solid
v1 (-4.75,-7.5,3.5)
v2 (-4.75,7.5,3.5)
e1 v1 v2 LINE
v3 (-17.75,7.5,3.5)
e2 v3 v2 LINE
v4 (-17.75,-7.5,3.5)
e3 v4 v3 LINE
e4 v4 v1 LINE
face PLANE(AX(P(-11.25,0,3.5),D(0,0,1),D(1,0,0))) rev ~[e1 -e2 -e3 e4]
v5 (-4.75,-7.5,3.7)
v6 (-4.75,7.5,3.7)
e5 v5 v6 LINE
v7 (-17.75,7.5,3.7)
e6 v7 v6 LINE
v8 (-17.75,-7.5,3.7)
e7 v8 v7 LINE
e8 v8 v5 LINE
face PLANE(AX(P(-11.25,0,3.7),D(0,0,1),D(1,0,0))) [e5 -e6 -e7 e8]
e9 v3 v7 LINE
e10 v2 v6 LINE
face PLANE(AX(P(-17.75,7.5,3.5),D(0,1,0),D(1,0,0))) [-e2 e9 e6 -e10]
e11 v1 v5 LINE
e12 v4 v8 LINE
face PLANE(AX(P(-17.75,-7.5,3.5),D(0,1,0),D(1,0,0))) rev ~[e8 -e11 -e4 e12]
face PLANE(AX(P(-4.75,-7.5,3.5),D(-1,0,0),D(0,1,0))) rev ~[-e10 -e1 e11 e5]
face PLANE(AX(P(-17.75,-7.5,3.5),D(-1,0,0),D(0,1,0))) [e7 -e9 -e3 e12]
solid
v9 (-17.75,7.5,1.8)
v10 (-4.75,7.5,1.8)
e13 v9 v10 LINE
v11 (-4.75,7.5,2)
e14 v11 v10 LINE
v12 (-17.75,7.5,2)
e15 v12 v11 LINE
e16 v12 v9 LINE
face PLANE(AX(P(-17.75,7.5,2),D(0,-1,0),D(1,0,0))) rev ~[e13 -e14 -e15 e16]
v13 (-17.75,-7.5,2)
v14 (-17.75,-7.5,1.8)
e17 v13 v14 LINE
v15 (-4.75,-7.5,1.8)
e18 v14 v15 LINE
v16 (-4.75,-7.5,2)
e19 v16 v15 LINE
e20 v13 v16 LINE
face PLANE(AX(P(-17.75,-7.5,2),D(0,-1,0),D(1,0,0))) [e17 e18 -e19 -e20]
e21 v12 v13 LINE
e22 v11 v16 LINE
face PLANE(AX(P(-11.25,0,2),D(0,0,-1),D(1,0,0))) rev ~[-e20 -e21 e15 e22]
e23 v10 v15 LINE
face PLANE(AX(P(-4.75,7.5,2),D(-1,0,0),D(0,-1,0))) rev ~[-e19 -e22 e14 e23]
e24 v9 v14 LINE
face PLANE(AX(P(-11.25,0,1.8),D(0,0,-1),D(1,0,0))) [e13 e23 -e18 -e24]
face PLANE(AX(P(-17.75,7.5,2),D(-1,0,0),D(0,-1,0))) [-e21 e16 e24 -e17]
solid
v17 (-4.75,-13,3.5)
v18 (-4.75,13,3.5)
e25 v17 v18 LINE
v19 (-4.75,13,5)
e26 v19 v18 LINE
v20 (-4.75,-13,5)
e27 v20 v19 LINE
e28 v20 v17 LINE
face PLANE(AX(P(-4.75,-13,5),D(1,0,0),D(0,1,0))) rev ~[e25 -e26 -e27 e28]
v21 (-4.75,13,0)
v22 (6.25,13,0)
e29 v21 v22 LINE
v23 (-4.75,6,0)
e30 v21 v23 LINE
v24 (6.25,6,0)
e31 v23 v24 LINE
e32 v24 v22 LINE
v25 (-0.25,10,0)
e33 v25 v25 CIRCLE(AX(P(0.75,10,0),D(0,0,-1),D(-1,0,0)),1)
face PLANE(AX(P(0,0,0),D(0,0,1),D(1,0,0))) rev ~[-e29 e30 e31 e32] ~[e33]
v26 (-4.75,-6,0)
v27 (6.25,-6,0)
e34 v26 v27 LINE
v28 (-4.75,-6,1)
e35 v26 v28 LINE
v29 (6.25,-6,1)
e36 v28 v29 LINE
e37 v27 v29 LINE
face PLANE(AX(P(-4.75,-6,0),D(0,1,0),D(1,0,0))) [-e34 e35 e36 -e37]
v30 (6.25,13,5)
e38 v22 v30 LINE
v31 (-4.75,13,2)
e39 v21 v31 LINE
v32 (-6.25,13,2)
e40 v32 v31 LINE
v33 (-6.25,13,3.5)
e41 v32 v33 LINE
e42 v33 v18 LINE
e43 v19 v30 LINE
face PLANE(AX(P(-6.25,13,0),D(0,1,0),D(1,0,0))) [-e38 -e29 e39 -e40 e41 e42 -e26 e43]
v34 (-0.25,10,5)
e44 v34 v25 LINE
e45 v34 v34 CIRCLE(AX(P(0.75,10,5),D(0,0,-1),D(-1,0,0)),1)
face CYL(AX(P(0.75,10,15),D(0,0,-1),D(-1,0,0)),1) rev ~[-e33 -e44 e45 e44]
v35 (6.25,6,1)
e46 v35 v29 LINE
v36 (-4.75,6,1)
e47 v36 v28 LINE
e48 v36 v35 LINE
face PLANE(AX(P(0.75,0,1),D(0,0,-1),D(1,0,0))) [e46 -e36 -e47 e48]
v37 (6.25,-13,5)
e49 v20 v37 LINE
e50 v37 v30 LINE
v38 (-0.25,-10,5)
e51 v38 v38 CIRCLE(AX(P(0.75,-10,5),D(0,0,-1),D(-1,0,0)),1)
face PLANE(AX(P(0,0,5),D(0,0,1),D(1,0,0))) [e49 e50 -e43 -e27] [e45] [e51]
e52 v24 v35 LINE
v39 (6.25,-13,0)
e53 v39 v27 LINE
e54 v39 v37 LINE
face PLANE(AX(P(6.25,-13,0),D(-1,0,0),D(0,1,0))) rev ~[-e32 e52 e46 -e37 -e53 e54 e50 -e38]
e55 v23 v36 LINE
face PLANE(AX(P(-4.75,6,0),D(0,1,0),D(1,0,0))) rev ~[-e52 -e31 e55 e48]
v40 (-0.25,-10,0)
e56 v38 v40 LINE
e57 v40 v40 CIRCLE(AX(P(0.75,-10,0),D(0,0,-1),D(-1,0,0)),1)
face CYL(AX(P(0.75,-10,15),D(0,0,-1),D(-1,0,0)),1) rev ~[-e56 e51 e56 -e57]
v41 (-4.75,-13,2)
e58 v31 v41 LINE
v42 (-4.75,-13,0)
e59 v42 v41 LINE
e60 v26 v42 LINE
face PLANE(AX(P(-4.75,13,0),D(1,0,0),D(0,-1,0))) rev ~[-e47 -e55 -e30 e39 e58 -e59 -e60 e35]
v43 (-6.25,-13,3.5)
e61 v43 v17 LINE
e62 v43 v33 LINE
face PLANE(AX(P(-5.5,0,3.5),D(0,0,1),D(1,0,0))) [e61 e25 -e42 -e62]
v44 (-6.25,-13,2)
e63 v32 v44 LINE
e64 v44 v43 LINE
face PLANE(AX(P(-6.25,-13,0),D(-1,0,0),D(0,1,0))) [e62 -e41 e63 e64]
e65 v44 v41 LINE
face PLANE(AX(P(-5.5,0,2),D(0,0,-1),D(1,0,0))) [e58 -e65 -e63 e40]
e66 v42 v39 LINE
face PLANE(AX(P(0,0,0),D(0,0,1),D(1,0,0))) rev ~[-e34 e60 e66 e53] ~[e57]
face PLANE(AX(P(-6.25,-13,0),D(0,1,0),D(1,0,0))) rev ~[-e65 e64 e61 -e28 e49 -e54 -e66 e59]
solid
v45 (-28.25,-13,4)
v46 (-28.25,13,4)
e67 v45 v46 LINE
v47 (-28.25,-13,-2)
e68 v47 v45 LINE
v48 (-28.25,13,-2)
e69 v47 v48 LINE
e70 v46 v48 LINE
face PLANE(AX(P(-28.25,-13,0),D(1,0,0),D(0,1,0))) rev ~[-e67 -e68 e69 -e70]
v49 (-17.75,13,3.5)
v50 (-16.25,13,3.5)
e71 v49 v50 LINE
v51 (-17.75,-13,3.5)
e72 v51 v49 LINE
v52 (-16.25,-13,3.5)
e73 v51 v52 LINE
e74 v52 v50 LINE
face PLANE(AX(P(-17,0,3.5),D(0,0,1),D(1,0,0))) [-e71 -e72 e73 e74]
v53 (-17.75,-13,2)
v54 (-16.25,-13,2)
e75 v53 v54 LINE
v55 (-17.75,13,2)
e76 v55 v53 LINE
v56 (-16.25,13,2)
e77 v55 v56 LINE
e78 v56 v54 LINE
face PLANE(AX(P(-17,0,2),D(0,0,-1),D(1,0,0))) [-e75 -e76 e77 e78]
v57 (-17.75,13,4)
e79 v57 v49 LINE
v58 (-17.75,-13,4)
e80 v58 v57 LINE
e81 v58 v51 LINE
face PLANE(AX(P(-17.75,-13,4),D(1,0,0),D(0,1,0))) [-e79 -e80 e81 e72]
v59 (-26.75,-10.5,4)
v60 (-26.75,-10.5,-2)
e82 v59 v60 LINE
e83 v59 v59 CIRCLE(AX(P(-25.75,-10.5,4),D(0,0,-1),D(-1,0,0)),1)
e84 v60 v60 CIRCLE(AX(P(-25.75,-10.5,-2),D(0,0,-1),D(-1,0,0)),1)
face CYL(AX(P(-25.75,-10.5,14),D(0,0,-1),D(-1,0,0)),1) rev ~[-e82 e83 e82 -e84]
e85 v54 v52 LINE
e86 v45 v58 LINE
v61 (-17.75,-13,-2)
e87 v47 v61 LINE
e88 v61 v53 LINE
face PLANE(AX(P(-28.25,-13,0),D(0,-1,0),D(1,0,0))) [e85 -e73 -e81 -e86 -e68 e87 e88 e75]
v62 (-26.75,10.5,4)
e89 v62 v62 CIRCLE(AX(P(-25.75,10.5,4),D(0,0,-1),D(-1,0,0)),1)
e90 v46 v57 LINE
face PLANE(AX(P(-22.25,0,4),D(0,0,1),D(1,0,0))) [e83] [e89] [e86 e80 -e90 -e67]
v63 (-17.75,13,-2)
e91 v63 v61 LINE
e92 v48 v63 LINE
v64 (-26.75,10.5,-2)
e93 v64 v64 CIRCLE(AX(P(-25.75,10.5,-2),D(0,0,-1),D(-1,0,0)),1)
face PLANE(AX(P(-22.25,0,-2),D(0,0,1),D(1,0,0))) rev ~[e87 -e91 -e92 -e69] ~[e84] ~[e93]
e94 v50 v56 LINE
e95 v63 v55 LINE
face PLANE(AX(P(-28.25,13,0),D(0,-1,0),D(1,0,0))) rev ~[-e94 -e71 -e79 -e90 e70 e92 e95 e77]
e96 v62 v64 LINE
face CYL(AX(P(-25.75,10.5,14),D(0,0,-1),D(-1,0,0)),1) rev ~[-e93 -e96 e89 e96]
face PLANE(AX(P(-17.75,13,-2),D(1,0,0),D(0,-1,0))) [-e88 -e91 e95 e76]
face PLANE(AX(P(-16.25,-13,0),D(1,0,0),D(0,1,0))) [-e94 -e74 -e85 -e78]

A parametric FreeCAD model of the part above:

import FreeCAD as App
import Part
import Sketcher
from FreeCAD import Vector

doc = App.newDocument("Part")
body = doc.addObject("PartDesign::Body", "Body")

# Sketch on XY plane
sketch1 = body.newObject("Sketcher::SketchObject", "Sketch")
sketch1.AttachmentSupport = (doc.getObject("XY_Plane"), [""])
sketch1.MapMode = "FlatFace"
sketch1.addGeometry([
    Part.LineSegment(Vector(-6.25, 13, 0), Vector(-6.25, -13, 0)),
    Part.LineSegment(Vector(-6.25, -13, 0), Vector(6.25, -13, 0)),
    Part.LineSegment(Vector(6.25, -13, 0), Vector(6.25, 13, 0)),
    Part.LineSegment(Vector(6.25, 13, 0), Vector(-6.25, 13, 0)),
], False)
sketch1.addConstraint([
    Sketcher.Constraint("Coincident", 0, 2, 1, 1),
    Sketcher.Constraint("Coincident", 1, 2, 2, 1),
    Sketcher.Constraint("Coincident", 2, 2, 3, 1),
    Sketcher.Constraint("Coincident", 3, 2, 0, 1),
    Sketcher.Constraint("Vertical", 0),
    Sketcher.Constraint("Horizontal", 1),
    Sketcher.Constraint("Vertical", 2),
    Sketcher.Constraint("Horizontal", 3),
    Sketcher.Constraint("Symmetric", 0, 2, 2, 2, -1, 1),
    Sketcher.Constraint("DistanceY", 0, 2, 0, 1, 26.0),
    Sketcher.Constraint("DistanceX", 1, 1, 1, 2, 12.5),
])
pad1 = body.newObject("PartDesign::Pad", "Pad")
pad1.Profile = sketch1
pad1.Length = 5

# Sketch on XY plane
sketch2 = body.newObject("Sketcher::SketchObject", "Sketch001")
sketch2.AttachmentSupport = (doc.getObject("XY_Plane"), [""])
sketch2.MapMode = "FlatFace"
sketch2.AttachmentOffset = App.Placement(Vector(0, 0, 5), App.Rotation())
sketch2.addGeometry([
    Part.LineSegment(Vector(-6.25, 13, 0), Vector(-6.25, -13, 0)),
    Part.LineSegment(Vector(-6.25, -13, 0), Vector(-4.75, -13, 0)),
    Part.LineSegment(Vector(-4.75, -13, 0), Vector(-4.75, 13, 0)),
    Part.LineSegment(Vector(-4.75, 13, 0), Vector(-6.25, 13, 0)),
], False)
sketch2.addConstraint([
    Sketcher.Constraint("Coincident", 0, 2, 1, 1),
    Sketcher.Constraint("Coincident", 1, 2, 2, 1),
    Sketcher.Constraint("Coincident", 2, 2, 3, 1),
    Sketcher.Constraint("Coincident", 3, 2, 0, 1),
    Sketcher.Constraint("Vertical", 0),
    Sketcher.Constraint("Horizontal", 1),
    Sketcher.Constraint("Vertical", 2),
    Sketcher.Constraint("Horizontal", 3),
    Sketcher.Constraint("DistanceY", 0, 2, 0, 1, 26.0),
    Sketcher.Constraint("DistanceX", 1, 1, 1, 2, 1.5),
    Sketcher.Constraint("DistanceY", 0, 2, -1, 1, 13.0),
    Sketcher.Constraint("DistanceX", 0, 2, -1, 1, 6.25),
])
pocket1 = body.newObject("PartDesign::Pocket", "Pocket")
pocket1.Profile = sketch2
pocket1.Length = 1.5

# Sketch on XY plane
sketch3 = body.newObject("Sketcher::SketchObject", "Sketch002")
sketch3.AttachmentSupport = (doc.getObject("XY_Plane"), [""])
sketch3.MapMode = "FlatFace"
sketch3.addGeometry([
    Part.LineSegment(Vector(-6.25, -13, 0), Vector(-6.25, 13, 0)),
    Part.LineSegment(Vector(-6.25, 13, 0), Vector(-4.75, 13, 0)),
    Part.LineSegment(Vector(-4.75, 13, 0), Vector(-4.75, -13, 0)),
    Part.LineSegment(Vector(-4.75, -13, 0), Vector(-6.25, -13, 0)),
], False)
sketch3.addConstraint([
    Sketcher.Constraint("Coincident", 0, 2, 1, 1),
    Sketcher.Constraint("Coincident", 1, 2, 2, 1),
    Sketcher.Constraint("Coincident", 2, 2, 3, 1),
    Sketcher.Constraint("Coincident", 3, 2, 0, 1),
    Sketcher.Constraint("Vertical", 0),
    Sketcher.Constraint("Horizontal", 1),
    Sketcher.Constraint("Vertical", 2),
    Sketcher.Constraint("Horizontal", 3),
    Sketcher.Constraint("DistanceY", 0, 1, 0, 2, 26.0),
    Sketcher.Constraint("DistanceX", 1, 1, 1, 2, 1.5),
    Sketcher.Constraint("DistanceY", -1, 1, 0, 2, 13.0),
    Sketcher.Constraint("DistanceX", 0, 2, -1, 1, 6.25),
])
pocket2 = body.newObject("PartDesign::Pocket", "Pocket001")
pocket2.Profile = sketch3
pocket2.Length = 2
pocket2.Reversed = True

# Sketch on XY plane
sketch4 = body.newObject("Sketcher::SketchObject", "Sketch003")
sketch4.AttachmentSupport = (doc.getObject("XY_Plane"), [""])
sketch4.MapMode = "FlatFace"
sketch4.addGeometry([
    Part.LineSegment(Vector(-4.75, -6, 0), Vector(-4.75, 6, 0)),
    Part.LineSegment(Vector(-4.75, 6, 0), Vector(6.25, 6, 0)),
    Part.LineSegment(Vector(6.25, 6, 0), Vector(6.25, -6, 0)),
    Part.LineSegment(Vector(6.25, -6, 0), Vector(-4.75, -6, 0)),
], False)
sketch4.addConstraint([
    Sketcher.Constraint("Coincident", 0, 2, 1, 1),
    Sketcher.Constraint("Coincident", 1, 2, 2, 1),
    Sketcher.Constraint("Coincident", 2, 2, 3, 1),
    Sketcher.Constraint("Coincident", 3, 2, 0, 1),
    Sketcher.Constraint("Vertical", 0),
    Sketcher.Constraint("Horizontal", 1),
    Sketcher.Constraint("Vertical", 2),
    Sketcher.Constraint("Horizontal", 3),
    Sketcher.Constraint("DistanceX", 1, 1, 1, 2, 11.0),
    Sketcher.Constraint("DistanceY", 0, 1, 0, 2, 12.0),
    Sketcher.Constraint("DistanceY", -1, 1, 0, 2, 6.0),
    Sketcher.Constraint("DistanceX", 0, 2, -1, 1, 4.75),
])
pocket3 = body.newObject("PartDesign::Pocket", "Pocket002")
pocket3.Profile = sketch4
pocket3.Length = 1
pocket3.Reversed = True

# Sketch on XY plane
sketch5 = body.newObject("Sketcher::SketchObject", "Sketch004")
sketch5.AttachmentSupport = (doc.getObject("XY_Plane"), [""])
sketch5.MapMode = "FlatFace"
sketch5.AttachmentOffset = App.Placement(Vector(0, 0, 5), App.Rotation())
sketch5.addGeometry([
    Part.Circle(Vector(0.75, 10, 0), Vector(0, 0, 1), 1),
    Part.Circle(Vector(0.75, -10, 0), Vector(0, 0, 1), 1),
], False)
sketch5.addConstraint([
    Sketcher.Constraint("Equal", 0, 1),
    Sketcher.Constraint("Symmetric", 0, 3, 1, 3, -1),
    Sketcher.Constraint("Diameter", 0, 2.0),
    Sketcher.Constraint("DistanceY", -1, 1, 0, 3, 10.0),
    Sketcher.Constraint("DistanceX", -1, 1, 0, 3, 0.75),
])
doc.recompute()
hole = body.newObject("PartDesign::Hole", "Hole")
hole.Profile = sketch5
hole.ThreadType = "None"
hole.Diameter = 2
hole.DepthType = "Dimension"
hole.Depth = 10
hole.DrillPoint = "Angled"
hole.DrillPointAngle = 118
body2 = doc.addObject("PartDesign::Body", "Body001")

# Sketch on XY plane
sketch6 = body2.newObject("Sketcher::SketchObject", "Sketch005")
sketch6.AttachmentSupport = (doc.getObject("XY_Plane001"), [""])
sketch6.MapMode = "FlatFace"
sketch6.AttachmentOffset = App.Placement(Vector(0, 0, 3.5), App.Rotation())
sketch6.addGeometry([
    Part.LineSegment(Vector(-17.75, 7.5, 0), Vector(-17.75, -7.5, 0)),
    Part.LineSegment(Vector(-17.75, -7.5, 0), Vector(-4.75, -7.5, 0)),
    Part.LineSegment(Vector(-4.75, -7.5, 0), Vector(-4.75, 7.5, 0)),
    Part.LineSegment(Vector(-4.75, 7.5, 0), Vector(-17.75, 7.5, 0)),
], False)
sketch6.addConstraint([
    Sketcher.Constraint("Coincident", 0, 2, 1, 1),
    Sketcher.Constraint("Coincident", 1, 2, 2, 1),
    Sketcher.Constraint("Coincident", 2, 2, 3, 1),
    Sketcher.Constraint("Coincident", 3, 2, 0, 1),
    Sketcher.Constraint("Vertical", 0),
    Sketcher.Constraint("Horizontal", 1),
    Sketcher.Constraint("Vertical", 2),
    Sketcher.Constraint("Horizontal", 3),
    Sketcher.Constraint("DistanceX", 1, 1, 1, 2, 13.0),
    Sketcher.Constraint("DistanceY", 0, 2, 0, 1, 15.0),
    Sketcher.Constraint("DistanceY", 0, 2, -1, 1, 7.5),
    Sketcher.Constraint("DistanceX", 0, 2, -1, 1, 17.75),
])
pad2 = body2.newObject("PartDesign::Pad", "Pad001")
pad2.Profile = sketch6
pad2.Length = 0.2
body3 = doc.addObject("PartDesign::Body", "Body002")

# Sketch on XY plane
sketch7 = body3.newObject("Sketcher::SketchObject", "Sketch006")
sketch7.AttachmentSupport = (doc.getObject("XY_Plane002"), [""])
sketch7.MapMode = "FlatFace"
sketch7.addGeometry([
    Part.LineSegment(Vector(-28.25, 13, 0), Vector(-28.25, -13, 0)),
    Part.LineSegment(Vector(-28.25, -13, 0), Vector(-16.25, -13, 0)),
    Part.LineSegment(Vector(-16.25, -13, 0), Vector(-16.25, 13, 0)),
    Part.LineSegment(Vector(-16.25, 13, 0), Vector(-28.25, 13, 0)),
], False)
sketch7.addConstraint([
    Sketcher.Constraint("Coincident", 0, 2, 1, 1),
    Sketcher.Constraint("Coincident", 1, 2, 2, 1),
    Sketcher.Constraint("Coincident", 2, 2, 3, 1),
    Sketcher.Constraint("Coincident", 3, 2, 0, 1),
    Sketcher.Constraint("Vertical", 0),
    Sketcher.Constraint("Horizontal", 1),
    Sketcher.Constraint("Vertical", 2),
    Sketcher.Constraint("Horizontal", 3),
    Sketcher.Constraint("DistanceX", 1, 1, 1, 2, 12.0),
    Sketcher.Constraint("DistanceY", 0, 2, 0, 1, 26.0),
    Sketcher.Constraint("DistanceY", 0, 2, -1, 1, 13.0),
    Sketcher.Constraint("DistanceX", 0, 2, -1, 1, 28.25),
])
pad3 = body3.newObject("PartDesign::Pad", "Pad002")
pad3.Profile = sketch7
pad3.Type = "TwoLengths"
pad3.Length = 4
pad3.Length2 = 2

# Sketch on XY plane
sketch8 = body3.newObject("Sketcher::SketchObject", "Sketch007")
sketch8.AttachmentSupport = (doc.getObject("XY_Plane002"), [""])
sketch8.MapMode = "FlatFace"
sketch8.AttachmentOffset = App.Placement(Vector(0, 0, 4), App.Rotation())
sketch8.addGeometry([
    Part.LineSegment(Vector(-17.75, 13, 0), Vector(-17.75, -13, 0)),
    Part.LineSegment(Vector(-17.75, -13, 0), Vector(-16.25, -13, 0)),
    Part.LineSegment(Vector(-16.25, -13, 0), Vector(-16.25, 13, 0)),
    Part.LineSegment(Vector(-16.25, 13, 0), Vector(-17.75, 13, 0)),
], False)
sketch8.addConstraint([
    Sketcher.Constraint("Coincident", 0, 2, 1, 1),
    Sketcher.Constraint("Coincident", 1, 2, 2, 1),
    Sketcher.Constraint("Coincident", 2, 2, 3, 1),
    Sketcher.Constraint("Coincident", 3, 2, 0, 1),
    Sketcher.Constraint("Vertical", 0),
    Sketcher.Constraint("Horizontal", 1),
    Sketcher.Constraint("Vertical", 2),
    Sketcher.Constraint("Horizontal", 3),
    Sketcher.Constraint("DistanceY", 0, 2, 0, 1, 26.0),
    Sketcher.Constraint("DistanceX", 1, 1, 1, 2, 1.5),
    Sketcher.Constraint("DistanceY", 0, 2, -1, 1, 13.0),
    Sketcher.Constraint("DistanceX", 0, 2, -1, 1, 17.75),
])
pocket4 = body3.newObject("PartDesign::Pocket", "Pocket003")
pocket4.Profile = sketch8
pocket4.Length = 0.5

# Sketch on XY plane
sketch9 = body3.newObject("Sketcher::SketchObject", "Sketch008")
sketch9.AttachmentSupport = (doc.getObject("XY_Plane002"), [""])
sketch9.MapMode = "FlatFace"
sketch9.AttachmentOffset = App.Placement(Vector(0, 0, -2), App.Rotation())
sketch9.addGeometry([
    Part.LineSegment(Vector(-17.75, -13, 0), Vector(-17.75, 13, 0)),
    Part.LineSegment(Vector(-17.75, 13, 0), Vector(-16.25, 13, 0)),
    Part.LineSegment(Vector(-16.25, 13, 0), Vector(-16.25, -13, 0)),
    Part.LineSegment(Vector(-16.25, -13, 0), Vector(-17.75, -13, 0)),
], False)
sketch9.addConstraint([
    Sketcher.Constraint("Coincident", 0, 2, 1, 1),
    Sketcher.Constraint("Coincident", 1, 2, 2, 1),
    Sketcher.Constraint("Coincident", 2, 2, 3, 1),
    Sketcher.Constraint("Coincident", 3, 2, 0, 1),
    Sketcher.Constraint("Vertical", 0),
    Sketcher.Constraint("Horizontal", 1),
    Sketcher.Constraint("Vertical", 2),
    Sketcher.Constraint("Horizontal", 3),
    Sketcher.Constraint("DistanceY", 0, 1, 0, 2, 26.0),
    Sketcher.Constraint("DistanceX", 1, 1, 1, 2, 1.5),
    Sketcher.Constraint("DistanceY", -1, 1, 0, 2, 13.0),
    Sketcher.Constraint("DistanceX", 0, 2, -1, 1, 17.75),
])
pocket5 = body3.newObject("PartDesign::Pocket", "Pocket004")
pocket5.Profile = sketch9
pocket5.Length = 4
pocket5.Reversed = True

# Sketch on XY plane
sketch10 = body3.newObject("Sketcher::SketchObject", "Sketch009")
sketch10.AttachmentSupport = (doc.getObject("XY_Plane002"), [""])
sketch10.MapMode = "FlatFace"
sketch10.AttachmentOffset = App.Placement(Vector(0, 0, 4), App.Rotation())
sketch10.addGeometry([
    Part.Circle(Vector(-25.75, 10.5, 0), Vector(0, 0, 1), 1),
    Part.Circle(Vector(-25.75, -10.5, 0), Vector(0, 0, 1), 1),
], False)
sketch10.addConstraint([
    Sketcher.Constraint("Equal", 0, 1),
    Sketcher.Constraint("Symmetric", 0, 3, 1, 3, -1),
    Sketcher.Constraint("Diameter", 0, 2.0),
    Sketcher.Constraint("DistanceY", 1, 3, 0, 3, 21.0),
    Sketcher.Constraint("DistanceX", 0, 3, -1, 1, 25.75),
])
doc.recompute()
hole2 = body3.newObject("PartDesign::Hole", "Hole001")
hole2.Profile = sketch10
hole2.ThreadType = "None"
hole2.Diameter = 2
hole2.DepthType = "Dimension"
hole2.Depth = 10
hole2.DrillPoint = "Angled"
hole2.DrillPointAngle = 118
body4 = doc.addObject("PartDesign::Body", "Body003")

# Sketch on XY plane
sketch11 = body4.newObject("Sketcher::SketchObject", "Sketch010")
sketch11.AttachmentSupport = (doc.getObject("XY_Plane003"), [""])
sketch11.MapMode = "FlatFace"
sketch11.AttachmentOffset = App.Placement(Vector(0, 0, 2), App.Rotation())
sketch11.addGeometry([
    Part.LineSegment(Vector(-17.75, -7.5, 0), Vector(-17.75, 7.5, 0)),
    Part.LineSegment(Vector(-17.75, 7.5, 0), Vector(-4.75, 7.5, 0)),
    Part.LineSegment(Vector(-4.75, 7.5, 0), Vector(-4.75, -7.5, 0)),
    Part.LineSegment(Vector(-4.75, -7.5, 0), Vector(-17.75, -7.5, 0)),
], False)
sketch11.addConstraint([
    Sketcher.Constraint("Coincident", 0, 2, 1, 1),
    Sketcher.Constraint("Coincident", 1, 2, 2, 1),
    Sketcher.Constraint("Coincident", 2, 2, 3, 1),
    Sketcher.Constraint("Coincident", 3, 2, 0, 1),
    Sketcher.Constraint("Vertical", 0),
    Sketcher.Constraint("Horizontal", 1),
    Sketcher.Constraint("Vertical", 2),
    Sketcher.Constraint("Horizontal", 3),
    Sketcher.Constraint("DistanceX", 1, 1, 1, 2, 13.0),
    Sketcher.Constraint("DistanceY", 0, 1, 0, 2, 15.0),
    Sketcher.Constraint("DistanceY", -1, 1, 0, 2, 7.5),
    Sketcher.Constraint("DistanceX", 0, 2, -1, 1, 17.75),
])
pad4 = body4.newObject("PartDesign::Pad", "Pad003")
pad4.Profile = sketch11
pad4.Length = 0.2
pad4.Reversed = True

doc.recompute()
